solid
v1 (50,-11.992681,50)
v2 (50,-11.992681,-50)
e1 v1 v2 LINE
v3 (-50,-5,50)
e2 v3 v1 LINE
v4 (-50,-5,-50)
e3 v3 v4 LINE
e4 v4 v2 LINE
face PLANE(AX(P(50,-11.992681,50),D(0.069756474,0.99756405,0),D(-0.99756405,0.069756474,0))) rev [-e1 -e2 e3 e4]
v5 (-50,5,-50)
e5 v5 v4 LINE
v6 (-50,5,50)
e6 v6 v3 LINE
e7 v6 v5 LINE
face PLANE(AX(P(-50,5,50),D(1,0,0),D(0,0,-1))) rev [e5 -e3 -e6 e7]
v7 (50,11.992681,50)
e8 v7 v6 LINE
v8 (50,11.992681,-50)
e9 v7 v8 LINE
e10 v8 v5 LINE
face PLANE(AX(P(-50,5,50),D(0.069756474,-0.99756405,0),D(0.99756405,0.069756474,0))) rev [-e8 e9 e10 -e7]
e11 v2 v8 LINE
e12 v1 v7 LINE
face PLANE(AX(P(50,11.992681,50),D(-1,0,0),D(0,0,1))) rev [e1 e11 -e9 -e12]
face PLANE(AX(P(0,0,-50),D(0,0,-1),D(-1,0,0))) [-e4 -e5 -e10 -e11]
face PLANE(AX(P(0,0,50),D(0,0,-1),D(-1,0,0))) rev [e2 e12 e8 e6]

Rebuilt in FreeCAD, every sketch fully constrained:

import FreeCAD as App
import Part
import Sketcher
from FreeCAD import Vector
Q = App.Units.Quantity

doc = App.newDocument("Part")
params = doc.addObject("Spreadsheet::Sheet", "Params")
for row, (alias, value) in enumerate([
    ("sketch1_height", "10 mm"),
    ("pad1_length", "100 mm"),
], start=1):
    params.set(f"A{row}", alias)
    params.set(f"B{row}", "=" + value)
    params.setAlias(f"B{row}", alias)

body = doc.addObject("PartDesign::Body", "Body")

# Sketch on XY plane
sketch1 = doc.addObject("Sketcher::SketchObject", "Sketch")
body.addObject(sketch1)
sketch1.AttachmentSupport = (doc.XY_Plane, [""])
sketch1.MapMode = "FlatFace"
sketch1.addGeometry([
    Part.LineSegment(Vector(-50, 5, 0), Vector(-50, -5, 0)),
    Part.LineSegment(Vector(-50, -5, 0), Vector(50, -12, 0)),
    Part.LineSegment(Vector(50, -12, 0), Vector(50, 12, 0)),
    Part.LineSegment(Vector(50, 12, 0), Vector(-50, 5, 0)),
], False)
sketch1.addConstraint([
    Sketcher.Constraint("Coincident", 0, 2, 1, 1),
    Sketcher.Constraint("Coincident", 1, 2, 2, 1),
    Sketcher.Constraint("Coincident", 2, 2, 3, 1),
    Sketcher.Constraint("Coincident", 3, 2, 0, 1),
    Sketcher.Constraint("Vertical", 0),
    Sketcher.Constraint("Vertical", 2),
    Sketcher.Constraint("Equal", 1, 3),
    Sketcher.Constraint("DistanceY", 0, 2, 0, 1, 10.0),
    Sketcher.Constraint("Angle", 1, Q("-4 deg")),
    Sketcher.Constraint("DistanceX", 0, 2, -1, 1, 50.0),
    Sketcher.Constraint("DistanceY", 0, 2, -1, 1, 5.0),
    Sketcher.Constraint("DistanceX", -1, 1, 1, 2, 50.0),
])
sketch1.setExpression("Constraints[7]", "Params.sketch1_height")
pad1 = doc.addObject("PartDesign::Pad", "Pad")
body.addObject(pad1)
pad1.Profile = sketch1
pad1.setExpression("Length", "Params.pad1_length")
pad1.Midplane = True

doc.recompute()
